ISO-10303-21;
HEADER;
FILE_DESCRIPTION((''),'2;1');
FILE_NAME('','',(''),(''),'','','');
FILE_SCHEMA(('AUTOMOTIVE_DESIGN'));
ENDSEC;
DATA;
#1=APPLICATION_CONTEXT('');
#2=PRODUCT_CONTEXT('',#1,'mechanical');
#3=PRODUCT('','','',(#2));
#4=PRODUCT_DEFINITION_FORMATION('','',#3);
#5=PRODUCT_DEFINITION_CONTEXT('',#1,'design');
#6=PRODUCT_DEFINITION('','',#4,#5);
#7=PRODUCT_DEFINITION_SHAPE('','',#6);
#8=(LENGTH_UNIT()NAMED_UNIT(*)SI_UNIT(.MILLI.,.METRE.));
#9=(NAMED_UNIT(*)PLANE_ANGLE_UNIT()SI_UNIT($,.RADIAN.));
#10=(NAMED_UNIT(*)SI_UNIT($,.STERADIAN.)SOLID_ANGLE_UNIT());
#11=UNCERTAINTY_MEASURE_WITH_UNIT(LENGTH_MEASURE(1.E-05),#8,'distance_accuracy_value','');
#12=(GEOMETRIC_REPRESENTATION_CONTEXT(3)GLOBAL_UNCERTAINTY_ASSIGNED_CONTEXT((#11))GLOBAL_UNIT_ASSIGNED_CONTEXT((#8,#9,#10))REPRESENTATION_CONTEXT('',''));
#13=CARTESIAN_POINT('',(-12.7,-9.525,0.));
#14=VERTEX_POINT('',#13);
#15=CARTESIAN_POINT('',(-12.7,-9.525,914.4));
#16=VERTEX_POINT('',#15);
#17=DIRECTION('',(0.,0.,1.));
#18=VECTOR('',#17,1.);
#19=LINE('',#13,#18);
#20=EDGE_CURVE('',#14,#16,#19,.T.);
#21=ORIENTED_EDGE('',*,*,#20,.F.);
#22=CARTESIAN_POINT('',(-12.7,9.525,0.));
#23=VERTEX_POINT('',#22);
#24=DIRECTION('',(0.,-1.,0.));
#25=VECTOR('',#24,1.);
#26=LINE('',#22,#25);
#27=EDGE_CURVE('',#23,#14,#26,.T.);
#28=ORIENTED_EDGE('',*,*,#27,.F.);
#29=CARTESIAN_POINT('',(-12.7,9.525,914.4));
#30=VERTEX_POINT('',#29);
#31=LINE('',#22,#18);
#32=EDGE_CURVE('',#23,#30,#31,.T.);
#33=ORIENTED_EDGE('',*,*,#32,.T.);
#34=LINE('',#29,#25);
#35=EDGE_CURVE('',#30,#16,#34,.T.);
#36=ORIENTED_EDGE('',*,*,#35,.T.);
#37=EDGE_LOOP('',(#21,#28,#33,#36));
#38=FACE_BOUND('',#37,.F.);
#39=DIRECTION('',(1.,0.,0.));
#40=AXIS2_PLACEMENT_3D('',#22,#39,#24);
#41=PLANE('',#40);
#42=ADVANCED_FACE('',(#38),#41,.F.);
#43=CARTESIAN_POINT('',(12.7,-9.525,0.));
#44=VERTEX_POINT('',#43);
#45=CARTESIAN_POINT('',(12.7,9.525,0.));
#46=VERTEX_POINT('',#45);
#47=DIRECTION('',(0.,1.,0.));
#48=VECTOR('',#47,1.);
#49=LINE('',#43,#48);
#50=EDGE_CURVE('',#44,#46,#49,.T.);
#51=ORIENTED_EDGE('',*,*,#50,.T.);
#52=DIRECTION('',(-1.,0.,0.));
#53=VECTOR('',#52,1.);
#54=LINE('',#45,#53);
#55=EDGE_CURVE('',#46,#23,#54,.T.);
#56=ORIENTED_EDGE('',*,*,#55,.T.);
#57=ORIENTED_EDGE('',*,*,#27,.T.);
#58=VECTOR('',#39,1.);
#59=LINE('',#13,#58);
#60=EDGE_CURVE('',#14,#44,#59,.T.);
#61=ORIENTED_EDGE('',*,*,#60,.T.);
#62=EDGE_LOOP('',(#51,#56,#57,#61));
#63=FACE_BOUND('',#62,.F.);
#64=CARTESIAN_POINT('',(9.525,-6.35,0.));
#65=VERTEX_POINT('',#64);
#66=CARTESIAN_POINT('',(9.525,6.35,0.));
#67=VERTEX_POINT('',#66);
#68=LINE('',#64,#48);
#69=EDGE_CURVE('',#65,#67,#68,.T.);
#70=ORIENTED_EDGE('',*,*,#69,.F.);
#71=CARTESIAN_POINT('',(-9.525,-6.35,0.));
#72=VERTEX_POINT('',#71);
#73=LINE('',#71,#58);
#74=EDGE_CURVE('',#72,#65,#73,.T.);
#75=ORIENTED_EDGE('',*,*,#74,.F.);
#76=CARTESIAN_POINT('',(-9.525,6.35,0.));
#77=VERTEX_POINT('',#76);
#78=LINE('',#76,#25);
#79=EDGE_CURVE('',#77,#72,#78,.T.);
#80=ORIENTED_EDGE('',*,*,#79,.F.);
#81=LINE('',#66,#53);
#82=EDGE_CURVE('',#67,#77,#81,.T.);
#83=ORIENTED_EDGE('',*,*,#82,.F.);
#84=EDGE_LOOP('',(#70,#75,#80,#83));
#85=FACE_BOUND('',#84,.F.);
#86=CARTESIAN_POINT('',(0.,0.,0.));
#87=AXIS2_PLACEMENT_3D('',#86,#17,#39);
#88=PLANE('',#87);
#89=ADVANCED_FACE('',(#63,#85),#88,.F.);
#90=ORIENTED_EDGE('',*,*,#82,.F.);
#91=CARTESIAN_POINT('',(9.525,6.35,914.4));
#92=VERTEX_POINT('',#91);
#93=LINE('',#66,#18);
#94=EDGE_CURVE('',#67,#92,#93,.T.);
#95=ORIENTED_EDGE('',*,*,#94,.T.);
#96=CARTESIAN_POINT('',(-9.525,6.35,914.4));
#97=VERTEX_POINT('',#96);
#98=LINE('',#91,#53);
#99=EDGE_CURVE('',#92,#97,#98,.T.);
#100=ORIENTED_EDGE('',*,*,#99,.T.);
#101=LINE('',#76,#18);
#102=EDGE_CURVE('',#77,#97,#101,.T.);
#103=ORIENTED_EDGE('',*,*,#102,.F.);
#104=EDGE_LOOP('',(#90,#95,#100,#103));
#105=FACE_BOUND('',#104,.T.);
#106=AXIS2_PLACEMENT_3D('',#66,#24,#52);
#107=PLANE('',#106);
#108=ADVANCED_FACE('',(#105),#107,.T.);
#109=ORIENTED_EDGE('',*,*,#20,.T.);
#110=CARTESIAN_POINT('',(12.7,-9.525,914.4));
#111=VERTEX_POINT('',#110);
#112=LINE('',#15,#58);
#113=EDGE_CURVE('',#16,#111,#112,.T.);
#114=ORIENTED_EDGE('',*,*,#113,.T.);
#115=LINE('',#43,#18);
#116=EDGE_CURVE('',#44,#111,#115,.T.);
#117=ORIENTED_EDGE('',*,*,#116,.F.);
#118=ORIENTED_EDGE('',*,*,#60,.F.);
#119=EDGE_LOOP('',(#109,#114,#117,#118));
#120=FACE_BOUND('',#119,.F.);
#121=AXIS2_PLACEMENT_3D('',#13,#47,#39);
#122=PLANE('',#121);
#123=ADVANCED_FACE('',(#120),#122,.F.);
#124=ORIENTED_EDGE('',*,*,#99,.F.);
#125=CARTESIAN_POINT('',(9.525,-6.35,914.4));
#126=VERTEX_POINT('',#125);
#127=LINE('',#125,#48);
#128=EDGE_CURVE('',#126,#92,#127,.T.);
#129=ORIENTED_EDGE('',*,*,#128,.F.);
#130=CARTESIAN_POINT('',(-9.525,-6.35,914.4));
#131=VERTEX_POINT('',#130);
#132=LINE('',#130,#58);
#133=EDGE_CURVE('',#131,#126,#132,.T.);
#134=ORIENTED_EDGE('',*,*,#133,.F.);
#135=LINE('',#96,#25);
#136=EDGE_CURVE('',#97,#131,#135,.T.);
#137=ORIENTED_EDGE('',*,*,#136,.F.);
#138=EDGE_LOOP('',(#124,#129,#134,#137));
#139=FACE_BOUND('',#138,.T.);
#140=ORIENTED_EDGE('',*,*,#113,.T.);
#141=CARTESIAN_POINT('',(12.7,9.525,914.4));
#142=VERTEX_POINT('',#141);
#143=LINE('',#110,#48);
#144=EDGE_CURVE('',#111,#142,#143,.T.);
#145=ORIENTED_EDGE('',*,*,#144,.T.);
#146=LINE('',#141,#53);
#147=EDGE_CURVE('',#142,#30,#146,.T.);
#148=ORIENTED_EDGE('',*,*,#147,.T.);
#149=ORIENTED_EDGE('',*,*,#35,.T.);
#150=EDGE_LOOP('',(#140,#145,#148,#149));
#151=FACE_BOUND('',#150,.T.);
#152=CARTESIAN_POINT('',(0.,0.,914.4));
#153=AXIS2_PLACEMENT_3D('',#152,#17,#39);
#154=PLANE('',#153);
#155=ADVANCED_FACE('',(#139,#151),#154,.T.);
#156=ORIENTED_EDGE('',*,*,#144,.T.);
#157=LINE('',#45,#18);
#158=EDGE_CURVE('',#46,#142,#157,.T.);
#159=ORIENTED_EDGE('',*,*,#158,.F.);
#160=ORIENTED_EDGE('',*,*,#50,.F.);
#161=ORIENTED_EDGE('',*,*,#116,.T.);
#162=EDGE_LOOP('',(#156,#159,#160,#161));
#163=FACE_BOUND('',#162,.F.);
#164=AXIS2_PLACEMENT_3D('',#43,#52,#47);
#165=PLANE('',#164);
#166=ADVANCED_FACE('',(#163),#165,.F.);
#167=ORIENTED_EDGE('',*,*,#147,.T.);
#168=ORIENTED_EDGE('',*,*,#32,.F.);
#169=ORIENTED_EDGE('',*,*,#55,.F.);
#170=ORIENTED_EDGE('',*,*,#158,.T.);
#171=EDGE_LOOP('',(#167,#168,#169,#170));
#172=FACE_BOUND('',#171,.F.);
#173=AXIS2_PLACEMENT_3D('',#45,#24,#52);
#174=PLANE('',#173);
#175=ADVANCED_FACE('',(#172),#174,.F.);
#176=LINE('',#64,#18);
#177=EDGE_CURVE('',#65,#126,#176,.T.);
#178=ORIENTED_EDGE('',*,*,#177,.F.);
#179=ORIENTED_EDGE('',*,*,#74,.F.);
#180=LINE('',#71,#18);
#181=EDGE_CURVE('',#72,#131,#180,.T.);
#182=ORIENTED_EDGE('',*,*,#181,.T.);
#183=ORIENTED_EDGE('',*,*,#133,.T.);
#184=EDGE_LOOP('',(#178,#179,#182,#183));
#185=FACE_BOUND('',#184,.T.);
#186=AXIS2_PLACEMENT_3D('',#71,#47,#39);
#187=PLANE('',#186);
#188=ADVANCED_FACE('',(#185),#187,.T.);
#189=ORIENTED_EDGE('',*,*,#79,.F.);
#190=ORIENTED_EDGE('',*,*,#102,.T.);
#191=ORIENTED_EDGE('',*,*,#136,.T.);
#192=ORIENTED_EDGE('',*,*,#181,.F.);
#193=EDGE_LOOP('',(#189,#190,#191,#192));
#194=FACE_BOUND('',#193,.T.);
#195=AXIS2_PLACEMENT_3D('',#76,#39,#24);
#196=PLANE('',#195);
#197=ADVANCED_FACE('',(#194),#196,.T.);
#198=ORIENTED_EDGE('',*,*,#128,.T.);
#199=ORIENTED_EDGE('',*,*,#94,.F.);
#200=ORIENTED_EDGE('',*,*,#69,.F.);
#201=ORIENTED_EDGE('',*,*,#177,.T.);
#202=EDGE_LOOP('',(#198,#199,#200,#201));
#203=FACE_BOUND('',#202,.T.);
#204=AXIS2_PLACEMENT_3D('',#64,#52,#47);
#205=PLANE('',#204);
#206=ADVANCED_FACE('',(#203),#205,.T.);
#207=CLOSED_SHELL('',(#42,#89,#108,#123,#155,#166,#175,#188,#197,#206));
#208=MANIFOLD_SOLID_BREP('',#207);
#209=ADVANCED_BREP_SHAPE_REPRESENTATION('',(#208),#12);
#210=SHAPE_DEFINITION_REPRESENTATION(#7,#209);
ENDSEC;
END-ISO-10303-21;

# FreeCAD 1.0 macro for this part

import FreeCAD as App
import Part
import Sketcher
Q = App.Units.Quantity


def add_polygon(sketch, points):
    """Adds a closed chain of lines whose ends are joined by coincident constraints."""
    first, n = sketch.GeometryCount, len(points)
    for a, b in zip(points, points[1:] + points[:1]):
        sketch.addGeometry(Part.LineSegment(App.Vector(*a, 0), App.Vector(*b, 0)), False)
    for i in range(n):
        sketch.addConstraint(Sketcher.Constraint("Coincident", first + i, 2, first + (i + 1) % n, 1))

doc = App.newDocument("Part")
body = doc.addObject("PartDesign::Body", "Body")

# Sketch on XY plane
sketch1 = body.newObject("Sketcher::SketchObject", "Sketch")
sketch1.AttachmentSupport = (doc.getObject("XY_Plane"), [""])
sketch1.MapMode = "FlatFace"
add_polygon(sketch1, [(-12.7, 9.525), (-12.7, -9.525), (12.7, -9.525), (12.7, 9.525)])  # lines 0-3
add_polygon(sketch1, [(9.525, -6.35), (-9.525, -6.35), (-9.525, 6.35), (9.525, 6.35)])  # lines 4-7
sketch1.addConstraint([
    Sketcher.Constraint("Vertical", 0),
    Sketcher.Constraint("Horizontal", 1),
    Sketcher.Constraint("Vertical", 2),
    Sketcher.Constraint("Horizontal", 3),
    Sketcher.Constraint("Horizontal", 4),
    Sketcher.Constraint("Vertical", 5),
    Sketcher.Constraint("Horizontal", 6),
    Sketcher.Constraint("Vertical", 7),
    Sketcher.Constraint("Symmetric", 0, 2, 2, 2, -1, 1),
    Sketcher.Constraint("Symmetric", 4, 2, 6, 2, -1, 1),
    Sketcher.Constraint("Equal", 6, 0),
    Sketcher.Constraint("DistanceX", 1, 1, 1, 2, Q("1 in")),
    Sketcher.Constraint("DistanceX", 4, 2, 4, 1, Q("0.75 in")),
    Sketcher.Constraint("DistanceY", 5, 1, 5, 2, Q("0.5 in")),
])
pad1 = body.newObject("PartDesign::Pad", "Pad")
pad1.Profile = sketch1
pad1.Length = Q("36 in")

doc.recompute()
